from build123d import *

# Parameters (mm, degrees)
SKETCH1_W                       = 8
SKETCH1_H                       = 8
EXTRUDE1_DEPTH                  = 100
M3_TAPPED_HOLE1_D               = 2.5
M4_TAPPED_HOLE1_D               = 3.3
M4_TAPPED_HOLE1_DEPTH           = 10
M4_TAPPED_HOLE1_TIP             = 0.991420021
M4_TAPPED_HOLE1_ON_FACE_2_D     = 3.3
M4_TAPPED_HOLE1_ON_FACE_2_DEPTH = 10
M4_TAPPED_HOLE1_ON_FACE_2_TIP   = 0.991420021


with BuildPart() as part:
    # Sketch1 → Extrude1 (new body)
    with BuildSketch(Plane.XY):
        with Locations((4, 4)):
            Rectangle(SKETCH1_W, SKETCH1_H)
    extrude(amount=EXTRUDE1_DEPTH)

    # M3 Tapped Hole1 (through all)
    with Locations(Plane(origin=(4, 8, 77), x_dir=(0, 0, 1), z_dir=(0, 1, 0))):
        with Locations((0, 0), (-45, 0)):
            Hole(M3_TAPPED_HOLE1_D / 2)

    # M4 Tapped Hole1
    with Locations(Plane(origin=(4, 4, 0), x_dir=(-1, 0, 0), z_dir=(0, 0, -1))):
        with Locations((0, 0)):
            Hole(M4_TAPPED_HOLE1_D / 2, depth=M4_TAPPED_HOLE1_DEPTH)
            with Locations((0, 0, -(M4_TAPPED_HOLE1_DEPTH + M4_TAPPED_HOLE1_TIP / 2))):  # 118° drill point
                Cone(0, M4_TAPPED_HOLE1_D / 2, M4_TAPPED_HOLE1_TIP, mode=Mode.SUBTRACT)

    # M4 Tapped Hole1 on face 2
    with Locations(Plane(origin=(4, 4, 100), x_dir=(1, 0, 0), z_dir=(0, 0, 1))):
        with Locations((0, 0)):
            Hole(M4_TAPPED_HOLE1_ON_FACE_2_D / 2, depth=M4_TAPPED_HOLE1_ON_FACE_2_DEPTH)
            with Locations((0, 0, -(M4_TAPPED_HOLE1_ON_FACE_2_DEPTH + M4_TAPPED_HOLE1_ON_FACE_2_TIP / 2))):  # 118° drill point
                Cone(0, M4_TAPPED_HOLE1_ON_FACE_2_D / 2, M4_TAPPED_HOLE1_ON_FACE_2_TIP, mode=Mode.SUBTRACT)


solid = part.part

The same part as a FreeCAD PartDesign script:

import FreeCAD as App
import Part
import Sketcher
from FreeCAD import Vector
Q = App.Units.Quantity

doc = App.newDocument("Part")
body = doc.addObject("PartDesign::Body", "Body")

# Sketch on XY plane
sketch1 = body.newObject("Sketcher::SketchObject", "Sketch")
sketch1.AttachmentSupport = (doc.getObject("XY_Plane"), [""])
sketch1.MapMode = "FlatFace"
sketch1.addGeometry([
    Part.LineSegment(Vector(0, 8, 0), Vector(0, 0, 0)),
    Part.LineSegment(Vector(0, 0, 0), Vector(8, 0, 0)),
    Part.LineSegment(Vector(8, 0, 0), Vector(8, 8, 0)),
    Part.LineSegment(Vector(8, 8, 0), Vector(0, 8, 0)),
], False)
sketch1.addConstraint([
    Sketcher.Constraint("Coincident", 0, 2, 1, 1),
    Sketcher.Constraint("Coincident", 1, 2, 2, 1),
    Sketcher.Constraint("Coincident", 2, 2, 3, 1),
    Sketcher.Constraint("Coincident", 3, 2, 0, 1),
    Sketcher.Constraint("Vertical", 0),
    Sketcher.Constraint("Horizontal", 1),
    Sketcher.Constraint("Vertical", 2),
    Sketcher.Constraint("Horizontal", 3),
    Sketcher.Constraint("Coincident", 0, 2, -1, 1),
    Sketcher.Constraint("Equal", 3, 0),
    Sketcher.Constraint("DistanceX", 1, 1, 1, 2, Q("8 mm")),
])
pad1 = body.newObject("PartDesign::Pad", "Pad")
pad1.Profile = sketch1
pad1.Length = 100

# Sketch on XZ plane
sketch2 = body.newObject("Sketcher::SketchObject", "Sketch001")
sketch2.AttachmentSupport = (doc.getObject("XZ_Plane"), [""])
sketch2.MapMode = "FlatFace"
sketch2.AttachmentOffset = App.Placement(Vector(0, 0, -8), App.Rotation())
sketch2.addGeometry([
    Part.Circle(Vector(4, 77, 0), Vector(0, 0, 1), 1.25),
    Part.Circle(Vector(4, 32, 0), Vector(0, 0, 1), 1.25),
], False)
sketch2.addConstraint([
    Sketcher.Constraint("Equal", 0, 1),
    Sketcher.Constraint("Vertical", 0, 3, 1, 3),
    Sketcher.Constraint("Diameter", 0, Q("2.5 mm")),
    Sketcher.Constraint("DistanceX", -1, 1, 0, 3, Q("4 mm")),
    Sketcher.Constraint("DistanceY", -1, 1, 0, 3, Q("77 mm")),
    Sketcher.Constraint("DistanceY", -1, 1, 1, 3, Q("32 mm")),
])
doc.recompute()
hole = body.newObject("PartDesign::Hole", "Hole")
hole.Profile = sketch2
hole.ThreadType = "None"
hole.Diameter = 2.5
hole.DepthType = "ThroughAll"
hole.Reversed = True

# Sketch on XY plane
sketch3 = body.newObject("Sketcher::SketchObject", "Sketch002")
sketch3.AttachmentSupport = (doc.getObject("XY_Plane"), [""])
sketch3.MapMode = "FlatFace"
sketch3.addGeometry(Part.Circle(Vector(4, 4, 0), Vector(0, 0, 1), 1.65), False)
sketch3.addConstraint([
    Sketcher.Constraint("Diameter", 0, Q("3.3 mm")),
    Sketcher.Constraint("DistanceX", -1, 1, 0, 3, Q("4 mm")),
    Sketcher.Constraint("DistanceY", -1, 1, 0, 3, Q("4 mm")),
])
doc.recompute()
hole2 = body.newObject("PartDesign::Hole", "Hole001")
hole2.Profile = sketch3
hole2.ThreadType = "None"
hole2.Diameter = 3.3
hole2.DepthType = "Dimension"
hole2.Depth = 10
hole2.DrillPoint = "Angled"
hole2.DrillPointAngle = 118
hole2.Reversed = True

# Sketch on XY plane
sketch4 = body.newObject("Sketcher::SketchObject", "Sketch003")
sketch4.AttachmentSupport = (doc.getObject("XY_Plane"), [""])
sketch4.MapMode = "FlatFace"
sketch4.AttachmentOffset = App.Placement(Vector(0, 0, 100), App.Rotation())
sketch4.addGeometry(Part.Circle(Vector(4, 4, 0), Vector(0, 0, 1), 1.65), False)
sketch4.addConstraint([
    Sketcher.Constraint("Diameter", 0, Q("3.3 mm")),
    Sketcher.Constraint("DistanceX", -1, 1, 0, 3, Q("4 mm")),
    Sketcher.Constraint("DistanceY", -1, 1, 0, 3, Q("4 mm")),
])
doc.recompute()
hole3 = body.newObject("PartDesign::Hole", "Hole002")
hole3.Profile = sketch4
hole3.ThreadType = "None"
hole3.Diameter = 3.3
hole3.DepthType = "Dimension"
hole3.Depth = 10
hole3.DrillPoint = "Angled"
hole3.DrillPointAngle = 118

doc.recompute()
